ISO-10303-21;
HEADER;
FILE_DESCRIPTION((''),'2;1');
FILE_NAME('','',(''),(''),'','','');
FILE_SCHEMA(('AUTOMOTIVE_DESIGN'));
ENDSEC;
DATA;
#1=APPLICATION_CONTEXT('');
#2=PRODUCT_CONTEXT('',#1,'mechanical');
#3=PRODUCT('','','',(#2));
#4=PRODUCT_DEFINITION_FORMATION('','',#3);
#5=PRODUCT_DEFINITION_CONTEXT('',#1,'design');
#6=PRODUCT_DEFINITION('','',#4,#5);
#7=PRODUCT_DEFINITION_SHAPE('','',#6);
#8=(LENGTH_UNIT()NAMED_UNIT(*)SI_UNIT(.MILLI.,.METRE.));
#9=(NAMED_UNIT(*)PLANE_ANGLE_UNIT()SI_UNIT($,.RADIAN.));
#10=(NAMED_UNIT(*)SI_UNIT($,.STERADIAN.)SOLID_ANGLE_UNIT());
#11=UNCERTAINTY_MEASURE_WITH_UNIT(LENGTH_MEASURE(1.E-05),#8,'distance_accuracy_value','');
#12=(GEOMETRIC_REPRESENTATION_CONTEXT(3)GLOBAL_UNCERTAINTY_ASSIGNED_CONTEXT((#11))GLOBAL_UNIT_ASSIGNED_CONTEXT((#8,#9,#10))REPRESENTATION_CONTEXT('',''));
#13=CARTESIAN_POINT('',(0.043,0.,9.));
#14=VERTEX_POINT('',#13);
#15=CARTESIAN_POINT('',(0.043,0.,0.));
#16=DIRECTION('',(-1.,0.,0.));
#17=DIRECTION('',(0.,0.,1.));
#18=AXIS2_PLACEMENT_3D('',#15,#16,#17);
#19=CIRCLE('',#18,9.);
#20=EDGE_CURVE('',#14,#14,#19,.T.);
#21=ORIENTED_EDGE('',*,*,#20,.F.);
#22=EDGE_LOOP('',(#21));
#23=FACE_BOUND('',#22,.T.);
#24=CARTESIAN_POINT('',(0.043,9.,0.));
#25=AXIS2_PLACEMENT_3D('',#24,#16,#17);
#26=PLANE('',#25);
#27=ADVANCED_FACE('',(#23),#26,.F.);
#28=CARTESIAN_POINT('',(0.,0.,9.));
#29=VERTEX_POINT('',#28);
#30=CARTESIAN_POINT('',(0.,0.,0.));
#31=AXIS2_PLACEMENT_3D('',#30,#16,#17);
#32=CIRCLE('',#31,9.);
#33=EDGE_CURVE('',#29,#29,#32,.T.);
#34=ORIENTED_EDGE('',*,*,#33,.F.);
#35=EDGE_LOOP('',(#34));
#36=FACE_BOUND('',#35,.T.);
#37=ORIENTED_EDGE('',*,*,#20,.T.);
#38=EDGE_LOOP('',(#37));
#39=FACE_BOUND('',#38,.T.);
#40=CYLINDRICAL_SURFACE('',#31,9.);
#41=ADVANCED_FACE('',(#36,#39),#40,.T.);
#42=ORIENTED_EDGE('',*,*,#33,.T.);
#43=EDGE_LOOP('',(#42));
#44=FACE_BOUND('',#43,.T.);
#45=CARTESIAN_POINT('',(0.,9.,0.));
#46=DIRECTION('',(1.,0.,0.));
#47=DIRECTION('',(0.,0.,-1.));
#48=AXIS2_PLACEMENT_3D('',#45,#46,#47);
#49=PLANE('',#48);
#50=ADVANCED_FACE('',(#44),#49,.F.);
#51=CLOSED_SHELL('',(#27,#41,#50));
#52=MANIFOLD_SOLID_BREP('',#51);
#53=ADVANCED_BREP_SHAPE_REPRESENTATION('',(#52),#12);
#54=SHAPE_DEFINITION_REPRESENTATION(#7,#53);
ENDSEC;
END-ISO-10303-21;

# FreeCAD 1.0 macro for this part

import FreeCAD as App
import Part
import Sketcher


def add_polygon(sketch, points):
    """Adds a closed chain of lines whose ends are joined by coincident constraints."""
    first, n = sketch.GeometryCount, len(points)
    for a, b in zip(points, points[1:] + points[:1]):
        sketch.addGeometry(Part.LineSegment(App.Vector(*a, 0), App.Vector(*b, 0)), False)
    for i in range(n):
        sketch.addConstraint(Sketcher.Constraint("Coincident", first + i, 2, first + (i + 1) % n, 1))

doc = App.newDocument("Part")
params = doc.addObject("Spreadsheet::Sheet", "Params")
for row, (alias, value) in enumerate([
    ("sketch1_height", "9 mm"),
    ("revolution_angle", "360 deg"),
], start=1):
    params.set(f"A{row}", alias)
    params.set(f"B{row}", "=" + value)
    params.setAlias(f"B{row}", alias)

body = doc.addObject("PartDesign::Body", "Body")

# Sketch on XY plane
sketch1 = body.newObject("Sketcher::SketchObject", "Sketch")
sketch1.AttachmentSupport = (doc.getObject("XY_Plane"), [""])
sketch1.MapMode = "FlatFace"
add_polygon(sketch1, [(0, 9), (0, 0), (0.043, 0), (0.043, 9)])  # lines 0-3
sketch1.addConstraint([
    Sketcher.Constraint("Vertical", 0),
    Sketcher.Constraint("Horizontal", 1),
    Sketcher.Constraint("Vertical", 2),
    Sketcher.Constraint("Horizontal", 3),
    Sketcher.Constraint("Coincident", 0, 2, -1, 1),
    Sketcher.Constraint("DistanceY", 0, 2, 0, 1, 9.0),
    Sketcher.Constraint("DistanceX", 1, 1, 1, 2, 0.043),
])
sketch1.setExpression("Constraints[9]", "Params.sketch1_height")
revolution = body.newObject("PartDesign::Revolution", "Revolution")
revolution.Profile = sketch1
revolution.ReferenceAxis = (sketch1, ["H_Axis"])
revolution.setExpression("Angle", "Params.revolution_angle")

doc.recompute()
